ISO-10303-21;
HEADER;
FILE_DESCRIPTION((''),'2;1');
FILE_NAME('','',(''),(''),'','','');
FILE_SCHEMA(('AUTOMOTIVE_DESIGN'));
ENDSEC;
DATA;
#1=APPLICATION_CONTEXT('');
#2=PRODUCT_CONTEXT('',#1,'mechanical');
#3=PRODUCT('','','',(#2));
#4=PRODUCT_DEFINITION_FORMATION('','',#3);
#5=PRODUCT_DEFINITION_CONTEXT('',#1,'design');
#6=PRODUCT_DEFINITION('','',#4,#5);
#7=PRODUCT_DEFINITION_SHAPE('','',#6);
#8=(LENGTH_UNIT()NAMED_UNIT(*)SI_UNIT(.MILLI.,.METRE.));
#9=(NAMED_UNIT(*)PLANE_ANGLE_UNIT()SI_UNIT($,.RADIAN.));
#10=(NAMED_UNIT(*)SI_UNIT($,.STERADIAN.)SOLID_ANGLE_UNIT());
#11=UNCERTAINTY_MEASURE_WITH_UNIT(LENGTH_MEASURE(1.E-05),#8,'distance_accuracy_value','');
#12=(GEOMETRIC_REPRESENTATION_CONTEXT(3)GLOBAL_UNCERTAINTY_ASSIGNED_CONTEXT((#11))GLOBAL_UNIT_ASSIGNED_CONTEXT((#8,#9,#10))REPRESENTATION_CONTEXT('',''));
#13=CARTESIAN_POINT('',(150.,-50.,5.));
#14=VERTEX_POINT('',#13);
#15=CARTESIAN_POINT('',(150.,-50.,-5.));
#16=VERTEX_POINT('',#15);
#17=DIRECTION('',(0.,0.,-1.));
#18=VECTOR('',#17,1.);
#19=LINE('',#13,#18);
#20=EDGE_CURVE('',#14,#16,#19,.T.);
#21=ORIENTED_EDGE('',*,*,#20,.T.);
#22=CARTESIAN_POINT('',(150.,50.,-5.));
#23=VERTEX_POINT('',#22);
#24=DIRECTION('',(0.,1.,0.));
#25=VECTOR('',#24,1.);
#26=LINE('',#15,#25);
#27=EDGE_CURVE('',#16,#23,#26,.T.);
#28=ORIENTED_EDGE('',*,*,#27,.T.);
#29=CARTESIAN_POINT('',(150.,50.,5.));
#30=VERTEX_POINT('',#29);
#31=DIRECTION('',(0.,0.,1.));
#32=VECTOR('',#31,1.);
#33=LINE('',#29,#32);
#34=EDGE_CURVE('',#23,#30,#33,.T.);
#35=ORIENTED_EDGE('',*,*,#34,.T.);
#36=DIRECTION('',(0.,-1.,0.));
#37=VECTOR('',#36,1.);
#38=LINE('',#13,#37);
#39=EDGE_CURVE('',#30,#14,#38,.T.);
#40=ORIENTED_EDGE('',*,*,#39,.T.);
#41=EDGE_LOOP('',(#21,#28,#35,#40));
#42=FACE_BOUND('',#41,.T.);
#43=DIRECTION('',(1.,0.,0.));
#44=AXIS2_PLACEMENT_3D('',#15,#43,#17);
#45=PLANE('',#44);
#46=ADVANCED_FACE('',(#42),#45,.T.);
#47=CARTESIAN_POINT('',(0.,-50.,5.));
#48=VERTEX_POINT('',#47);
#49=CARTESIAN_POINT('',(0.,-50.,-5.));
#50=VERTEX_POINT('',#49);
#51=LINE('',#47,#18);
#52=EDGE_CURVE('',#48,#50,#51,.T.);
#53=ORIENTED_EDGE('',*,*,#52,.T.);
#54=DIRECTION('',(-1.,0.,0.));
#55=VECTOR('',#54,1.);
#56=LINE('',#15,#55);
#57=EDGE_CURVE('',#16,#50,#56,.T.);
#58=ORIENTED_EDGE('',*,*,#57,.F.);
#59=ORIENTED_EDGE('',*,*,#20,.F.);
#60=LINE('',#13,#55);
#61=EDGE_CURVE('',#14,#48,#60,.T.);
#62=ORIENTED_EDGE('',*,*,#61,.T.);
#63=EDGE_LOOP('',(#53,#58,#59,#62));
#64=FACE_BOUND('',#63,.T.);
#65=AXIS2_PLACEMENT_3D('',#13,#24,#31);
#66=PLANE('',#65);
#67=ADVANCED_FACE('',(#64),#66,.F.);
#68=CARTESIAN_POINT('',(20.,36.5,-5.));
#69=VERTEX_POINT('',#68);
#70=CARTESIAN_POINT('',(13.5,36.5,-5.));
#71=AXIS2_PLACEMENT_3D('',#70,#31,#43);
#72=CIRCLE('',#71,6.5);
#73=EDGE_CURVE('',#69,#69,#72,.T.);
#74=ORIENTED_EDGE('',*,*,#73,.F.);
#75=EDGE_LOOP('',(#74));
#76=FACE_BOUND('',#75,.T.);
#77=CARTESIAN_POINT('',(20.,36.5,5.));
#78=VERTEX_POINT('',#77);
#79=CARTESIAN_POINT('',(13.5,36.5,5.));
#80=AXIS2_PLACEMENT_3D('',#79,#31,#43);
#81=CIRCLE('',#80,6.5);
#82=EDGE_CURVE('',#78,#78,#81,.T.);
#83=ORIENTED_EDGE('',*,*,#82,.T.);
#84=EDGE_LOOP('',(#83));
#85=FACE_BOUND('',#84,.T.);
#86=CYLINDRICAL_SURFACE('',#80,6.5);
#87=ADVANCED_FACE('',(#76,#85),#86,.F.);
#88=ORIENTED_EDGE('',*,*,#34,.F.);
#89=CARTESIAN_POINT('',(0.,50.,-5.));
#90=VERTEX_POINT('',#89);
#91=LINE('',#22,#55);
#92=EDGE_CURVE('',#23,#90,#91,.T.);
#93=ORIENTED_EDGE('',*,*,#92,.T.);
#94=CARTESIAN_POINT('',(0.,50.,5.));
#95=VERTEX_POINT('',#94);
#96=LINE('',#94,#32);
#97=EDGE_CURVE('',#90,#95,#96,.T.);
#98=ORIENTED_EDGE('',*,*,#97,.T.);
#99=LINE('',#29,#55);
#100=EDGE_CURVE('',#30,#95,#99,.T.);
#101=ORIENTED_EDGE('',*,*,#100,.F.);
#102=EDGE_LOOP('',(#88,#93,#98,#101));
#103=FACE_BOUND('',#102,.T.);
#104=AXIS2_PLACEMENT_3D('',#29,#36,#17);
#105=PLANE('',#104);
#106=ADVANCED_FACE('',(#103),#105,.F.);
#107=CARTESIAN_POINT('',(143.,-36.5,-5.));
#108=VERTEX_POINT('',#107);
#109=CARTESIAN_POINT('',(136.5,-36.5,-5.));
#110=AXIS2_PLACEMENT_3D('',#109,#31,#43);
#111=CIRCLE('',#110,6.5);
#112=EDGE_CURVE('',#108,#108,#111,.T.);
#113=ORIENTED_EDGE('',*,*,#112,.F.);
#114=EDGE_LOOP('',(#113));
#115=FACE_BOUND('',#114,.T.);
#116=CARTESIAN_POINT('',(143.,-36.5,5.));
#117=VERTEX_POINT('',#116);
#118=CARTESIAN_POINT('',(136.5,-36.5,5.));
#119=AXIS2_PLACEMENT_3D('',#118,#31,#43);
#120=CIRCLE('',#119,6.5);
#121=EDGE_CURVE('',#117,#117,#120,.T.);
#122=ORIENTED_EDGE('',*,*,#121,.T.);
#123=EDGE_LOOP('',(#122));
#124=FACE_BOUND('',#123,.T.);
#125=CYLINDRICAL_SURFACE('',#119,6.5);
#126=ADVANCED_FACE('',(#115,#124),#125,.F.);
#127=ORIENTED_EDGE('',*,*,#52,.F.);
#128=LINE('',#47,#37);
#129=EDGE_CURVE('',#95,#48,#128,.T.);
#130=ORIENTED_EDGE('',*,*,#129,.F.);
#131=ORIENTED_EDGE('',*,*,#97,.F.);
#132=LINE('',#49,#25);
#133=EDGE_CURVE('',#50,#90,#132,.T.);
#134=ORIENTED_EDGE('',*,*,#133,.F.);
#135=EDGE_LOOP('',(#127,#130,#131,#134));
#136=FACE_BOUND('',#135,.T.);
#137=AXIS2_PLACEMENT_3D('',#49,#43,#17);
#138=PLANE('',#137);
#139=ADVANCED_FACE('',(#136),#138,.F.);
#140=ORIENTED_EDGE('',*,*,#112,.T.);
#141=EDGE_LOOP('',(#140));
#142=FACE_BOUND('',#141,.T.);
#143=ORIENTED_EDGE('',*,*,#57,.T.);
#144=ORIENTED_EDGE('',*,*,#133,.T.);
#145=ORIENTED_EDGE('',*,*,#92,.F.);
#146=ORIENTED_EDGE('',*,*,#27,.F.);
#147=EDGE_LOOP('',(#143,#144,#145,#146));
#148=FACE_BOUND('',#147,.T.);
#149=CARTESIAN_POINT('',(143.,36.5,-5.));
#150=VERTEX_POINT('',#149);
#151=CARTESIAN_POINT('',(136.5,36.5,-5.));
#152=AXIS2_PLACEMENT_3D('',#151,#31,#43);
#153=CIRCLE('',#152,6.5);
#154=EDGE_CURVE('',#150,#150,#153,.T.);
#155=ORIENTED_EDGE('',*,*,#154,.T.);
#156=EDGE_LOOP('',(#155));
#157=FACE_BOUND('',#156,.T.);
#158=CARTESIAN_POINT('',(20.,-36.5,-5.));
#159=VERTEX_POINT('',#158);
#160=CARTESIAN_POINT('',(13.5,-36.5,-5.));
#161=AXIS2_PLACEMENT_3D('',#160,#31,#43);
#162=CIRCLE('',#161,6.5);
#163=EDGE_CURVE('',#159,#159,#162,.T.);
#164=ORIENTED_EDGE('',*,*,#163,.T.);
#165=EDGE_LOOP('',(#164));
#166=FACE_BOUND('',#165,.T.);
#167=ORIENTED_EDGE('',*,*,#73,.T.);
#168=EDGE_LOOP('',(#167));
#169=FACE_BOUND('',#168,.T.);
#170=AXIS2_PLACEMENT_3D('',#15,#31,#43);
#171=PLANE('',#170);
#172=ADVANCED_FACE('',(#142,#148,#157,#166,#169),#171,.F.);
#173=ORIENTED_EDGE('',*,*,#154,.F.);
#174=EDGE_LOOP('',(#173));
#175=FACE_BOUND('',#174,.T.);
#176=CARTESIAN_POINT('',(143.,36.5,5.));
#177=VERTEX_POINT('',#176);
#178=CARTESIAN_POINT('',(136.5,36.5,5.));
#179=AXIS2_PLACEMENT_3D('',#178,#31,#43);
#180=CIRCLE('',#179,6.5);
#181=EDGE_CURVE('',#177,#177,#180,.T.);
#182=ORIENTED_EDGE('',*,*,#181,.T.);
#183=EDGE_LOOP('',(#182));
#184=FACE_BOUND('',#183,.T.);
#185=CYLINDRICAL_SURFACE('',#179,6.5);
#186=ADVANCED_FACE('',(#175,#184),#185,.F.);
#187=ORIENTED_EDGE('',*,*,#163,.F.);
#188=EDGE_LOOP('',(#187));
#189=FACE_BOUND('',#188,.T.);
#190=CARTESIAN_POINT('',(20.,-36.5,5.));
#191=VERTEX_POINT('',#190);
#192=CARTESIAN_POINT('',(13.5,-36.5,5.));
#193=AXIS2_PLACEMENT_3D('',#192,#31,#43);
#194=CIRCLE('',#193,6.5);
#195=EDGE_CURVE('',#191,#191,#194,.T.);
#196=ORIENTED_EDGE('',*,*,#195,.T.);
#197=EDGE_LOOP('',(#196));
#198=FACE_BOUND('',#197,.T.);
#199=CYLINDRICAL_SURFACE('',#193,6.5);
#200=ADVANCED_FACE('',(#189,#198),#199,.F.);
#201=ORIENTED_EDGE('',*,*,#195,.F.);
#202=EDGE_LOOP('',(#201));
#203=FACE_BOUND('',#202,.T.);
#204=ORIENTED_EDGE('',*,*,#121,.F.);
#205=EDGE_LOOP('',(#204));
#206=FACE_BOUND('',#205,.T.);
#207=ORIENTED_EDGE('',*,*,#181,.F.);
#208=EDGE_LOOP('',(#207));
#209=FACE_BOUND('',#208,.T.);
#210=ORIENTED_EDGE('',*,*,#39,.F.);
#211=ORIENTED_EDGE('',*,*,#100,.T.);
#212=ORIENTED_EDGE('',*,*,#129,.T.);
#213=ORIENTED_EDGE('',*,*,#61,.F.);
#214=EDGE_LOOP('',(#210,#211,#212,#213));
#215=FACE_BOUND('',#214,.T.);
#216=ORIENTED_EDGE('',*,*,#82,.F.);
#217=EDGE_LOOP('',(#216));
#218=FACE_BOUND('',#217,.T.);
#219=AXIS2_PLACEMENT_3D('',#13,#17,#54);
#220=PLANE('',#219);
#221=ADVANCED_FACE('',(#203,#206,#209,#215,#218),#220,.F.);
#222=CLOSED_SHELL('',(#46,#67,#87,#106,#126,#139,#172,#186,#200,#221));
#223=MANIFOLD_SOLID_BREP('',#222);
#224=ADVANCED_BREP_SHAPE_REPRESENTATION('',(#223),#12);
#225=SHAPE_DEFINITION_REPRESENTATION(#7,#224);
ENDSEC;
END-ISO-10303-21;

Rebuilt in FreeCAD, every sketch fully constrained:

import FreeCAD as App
import Part
import Sketcher

V = App.Vector
Q = App.Units.Quantity


def add_polygon(sketch, points):
    """Adds a closed chain of lines whose ends are joined by coincident constraints."""
    first, n = sketch.GeometryCount, len(points)
    for a, b in zip(points, points[1:] + points[:1]):
        sketch.addGeometry(Part.LineSegment(App.Vector(*a, 0), App.Vector(*b, 0)), False)
    for i in range(n):
        sketch.addConstraint(Sketcher.Constraint("Coincident", first + i, 2, first + (i + 1) % n, 1))

doc = App.newDocument("Part")
body = doc.addObject("PartDesign::Body", "Body")

# Sketch on YZ plane
sketch1 = body.newObject("Sketcher::SketchObject", "Sketch")
sketch1.AttachmentSupport = (doc.getObject("YZ_Plane"), [""])
sketch1.MapMode = "FlatFace"
add_polygon(sketch1, [(-50, 5), (-50, -5), (50, -5), (50, 5)])  # lines 0-3
sketch1.addConstraint([
    Sketcher.Constraint("Vertical", 0),
    Sketcher.Constraint("Horizontal", 1),
    Sketcher.Constraint("Vertical", 2),
    Sketcher.Constraint("Horizontal", 3),
    Sketcher.Constraint("Symmetric", 0, 2, 2, 2, -1, 1),
    Sketcher.Constraint("DistanceX", 1, 1, 1, 2, Q("100 mm")),
    Sketcher.Constraint("DistanceY", 0, 2, 0, 1, Q("10 mm")),
])
pad1 = body.newObject("PartDesign::Pad", "Pad")
pad1.Profile = sketch1
pad1.Length = 150

# Sketch on XY plane
sketch2 = body.newObject("Sketcher::SketchObject", "Sketch001")
sketch2.AttachmentSupport = (doc.getObject("XY_Plane"), [""])
sketch2.MapMode = "FlatFace"
sketch2.AttachmentOffset = App.Placement(V(0, 0, 5), App.Rotation())
sketch2.addGeometry([
    Part.Circle(V(13.5, 36.5, 0), V(0, 0, 1), 6.5),
    Part.Circle(V(136.5, 36.5, 0), V(0, 0, 1), 6.5),
    Part.Circle(V(136.5, -36.5, 0), V(0, 0, 1), 6.5),
    Part.Circle(V(13.5, -36.5, 0), V(0, 0, 1), 6.5),
], False)
sketch2.addConstraint([
    Sketcher.Constraint("Equal", 0, 1),
    Sketcher.Constraint("Equal", 1, 2),
    Sketcher.Constraint("Equal", 2, 3),
    Sketcher.Constraint("Symmetric", 1, 3, 2, 3, -1),
    Sketcher.Constraint("Symmetric", 0, 3, 3, 3, -1),
    Sketcher.Constraint("Horizontal", 0, 3, 1, 3),
    Sketcher.Constraint("Diameter", 0, Q("13 mm")),
    Sketcher.Constraint("DistanceX", 0, 3, 1, 3, Q("123 mm")),
    Sketcher.Constraint("DistanceY", 2, 3, 1, 3, Q("73 mm")),
    Sketcher.Constraint("DistanceX", -1, 1, 0, 3, Q("13.5 mm")),
])
doc.recompute()
hole = body.newObject("PartDesign::Hole", "Hole")
hole.Profile = sketch2
hole.ThreadType = "None"
hole.Diameter = 13
hole.DepthType = "ThroughAll"

doc.recompute()
